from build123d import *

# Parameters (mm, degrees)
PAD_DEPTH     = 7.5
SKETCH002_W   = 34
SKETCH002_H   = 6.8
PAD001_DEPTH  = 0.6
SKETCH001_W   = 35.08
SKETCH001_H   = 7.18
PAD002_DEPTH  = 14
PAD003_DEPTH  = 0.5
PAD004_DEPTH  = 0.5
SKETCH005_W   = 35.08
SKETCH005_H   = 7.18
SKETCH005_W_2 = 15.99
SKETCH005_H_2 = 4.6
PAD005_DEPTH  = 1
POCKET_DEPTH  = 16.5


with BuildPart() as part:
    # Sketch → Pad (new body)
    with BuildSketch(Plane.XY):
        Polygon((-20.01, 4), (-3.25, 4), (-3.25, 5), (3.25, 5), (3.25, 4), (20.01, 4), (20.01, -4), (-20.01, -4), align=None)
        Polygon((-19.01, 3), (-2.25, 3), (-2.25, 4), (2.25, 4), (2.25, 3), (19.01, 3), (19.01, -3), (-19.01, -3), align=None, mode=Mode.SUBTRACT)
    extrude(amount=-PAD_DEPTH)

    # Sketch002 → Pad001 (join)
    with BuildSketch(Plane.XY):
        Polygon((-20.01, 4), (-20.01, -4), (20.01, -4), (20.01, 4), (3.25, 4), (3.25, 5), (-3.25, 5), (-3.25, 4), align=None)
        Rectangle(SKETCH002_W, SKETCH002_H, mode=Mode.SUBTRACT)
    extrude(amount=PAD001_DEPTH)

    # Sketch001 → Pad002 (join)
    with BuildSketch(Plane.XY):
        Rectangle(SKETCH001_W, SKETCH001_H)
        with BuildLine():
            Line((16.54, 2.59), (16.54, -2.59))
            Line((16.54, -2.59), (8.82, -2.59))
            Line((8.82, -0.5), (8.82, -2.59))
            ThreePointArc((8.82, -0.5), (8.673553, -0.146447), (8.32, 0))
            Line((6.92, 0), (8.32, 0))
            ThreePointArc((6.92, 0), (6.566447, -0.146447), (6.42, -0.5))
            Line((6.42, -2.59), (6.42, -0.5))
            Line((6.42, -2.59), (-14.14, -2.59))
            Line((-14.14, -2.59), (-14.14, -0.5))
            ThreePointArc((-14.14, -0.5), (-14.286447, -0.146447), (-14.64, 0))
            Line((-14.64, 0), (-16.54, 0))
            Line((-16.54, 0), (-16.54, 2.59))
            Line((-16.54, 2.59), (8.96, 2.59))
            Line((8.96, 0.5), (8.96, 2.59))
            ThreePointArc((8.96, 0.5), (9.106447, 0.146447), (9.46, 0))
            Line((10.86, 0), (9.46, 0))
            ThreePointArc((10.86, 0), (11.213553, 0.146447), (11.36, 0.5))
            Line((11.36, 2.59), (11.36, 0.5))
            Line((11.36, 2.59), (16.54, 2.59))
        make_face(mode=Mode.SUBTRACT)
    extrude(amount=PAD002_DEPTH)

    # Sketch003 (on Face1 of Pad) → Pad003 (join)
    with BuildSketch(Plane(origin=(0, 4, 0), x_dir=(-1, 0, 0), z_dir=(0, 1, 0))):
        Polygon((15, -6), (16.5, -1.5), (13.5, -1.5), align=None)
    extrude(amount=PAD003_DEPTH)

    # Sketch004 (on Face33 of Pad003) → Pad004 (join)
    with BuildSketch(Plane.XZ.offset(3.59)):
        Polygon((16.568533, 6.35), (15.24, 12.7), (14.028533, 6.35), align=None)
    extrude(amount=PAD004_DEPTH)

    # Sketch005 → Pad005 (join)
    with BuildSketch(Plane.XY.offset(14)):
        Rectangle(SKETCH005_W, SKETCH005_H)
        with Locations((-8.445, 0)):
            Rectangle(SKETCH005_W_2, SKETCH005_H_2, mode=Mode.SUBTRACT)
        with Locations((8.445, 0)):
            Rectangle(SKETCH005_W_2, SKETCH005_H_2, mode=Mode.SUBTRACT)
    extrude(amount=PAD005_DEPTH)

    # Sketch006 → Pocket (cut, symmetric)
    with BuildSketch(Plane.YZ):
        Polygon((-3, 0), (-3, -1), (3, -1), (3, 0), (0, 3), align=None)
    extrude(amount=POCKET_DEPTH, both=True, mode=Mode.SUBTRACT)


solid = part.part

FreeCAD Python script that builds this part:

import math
import FreeCAD as App
import Part
import Sketcher
Q = App.Units.Quantity

doc = App.newDocument("Part")
body = doc.addObject("PartDesign::Body", "Body")

# Sketch on XY plane
sketch1 = body.newObject("Sketcher::SketchObject", "Sketch")
sketch1.AttachmentSupport = (doc.getObject("XY_Plane"), [""])
sketch1.MapMode = "FlatFace"
sketch1.addGeometry([
    Part.LineSegment(App.Vector(-3.25, 4, 0), App.Vector(-20.01, 4, 0)),  # 0
    Part.LineSegment(App.Vector(-20.01, 4, 0), App.Vector(-20.01, -4, 0)),  # 1
    Part.LineSegment(App.Vector(-20.01, -4, 0), App.Vector(20.01, -4, 0)),  # 2
    Part.LineSegment(App.Vector(20.01, -4, 0), App.Vector(20.01, 4, 0)),  # 3
    Part.LineSegment(App.Vector(20.01, 4, 0), App.Vector(3.25, 4, 0)),  # 4
    Part.LineSegment(App.Vector(3.25, 4, 0), App.Vector(3.25, 5, 0)),  # 5
    Part.LineSegment(App.Vector(3.25, 5, 0), App.Vector(-3.25, 5, 0)),  # 6
    Part.LineSegment(App.Vector(-3.25, 5, 0), App.Vector(-3.25, 4, 0)),  # 7
    Part.LineSegment(App.Vector(-19.01, 3, 0), App.Vector(-2.25, 3, 0)),  # 8
    Part.LineSegment(App.Vector(-2.25, 3, 0), App.Vector(-2.25, 4, 0)),  # 9
    Part.LineSegment(App.Vector(-2.25, 4, 0), App.Vector(2.25, 4, 0)),  # 10
    Part.LineSegment(App.Vector(2.25, 4, 0), App.Vector(2.25, 3, 0)),  # 11
    Part.LineSegment(App.Vector(2.25, 3, 0), App.Vector(19.01, 3, 0)),  # 12
    Part.LineSegment(App.Vector(19.01, 3, 0), App.Vector(19.01, -3, 0)),  # 13
    Part.LineSegment(App.Vector(19.01, -3, 0), App.Vector(-19.01, -3, 0)),  # 14
    Part.LineSegment(App.Vector(-19.01, -3, 0), App.Vector(-19.01, 3, 0)),  # 15
], False)
sketch1.addConstraint([
    Sketcher.Constraint("Coincident", 0, 2, 1, 1),
    Sketcher.Constraint("Coincident", 1, 2, 2, 1),
    Sketcher.Constraint("Coincident", 2, 2, 3, 1),
    Sketcher.Constraint("Coincident", 3, 2, 4, 1),
    Sketcher.Constraint("Coincident", 4, 2, 5, 1),
    Sketcher.Constraint("Coincident", 5, 2, 6, 1),
    Sketcher.Constraint("Coincident", 6, 2, 7, 1),
    Sketcher.Constraint("Coincident", 7, 2, 0, 1),
    Sketcher.Constraint("Coincident", 8, 2, 9, 1),
    Sketcher.Constraint("Coincident", 9, 2, 10, 1),
    Sketcher.Constraint("Coincident", 10, 2, 11, 1),
    Sketcher.Constraint("Coincident", 11, 2, 12, 1),
    Sketcher.Constraint("Coincident", 12, 2, 13, 1),
    Sketcher.Constraint("Coincident", 13, 2, 14, 1),
    Sketcher.Constraint("Coincident", 14, 2, 15, 1),
    Sketcher.Constraint("Coincident", 15, 2, 8, 1),
    Sketcher.Constraint("Horizontal", 0),
    Sketcher.Constraint("Vertical", 1),
    Sketcher.Constraint("Horizontal", 2),
    Sketcher.Constraint("Vertical", 3),
    Sketcher.Constraint("Horizontal", 4),
    Sketcher.Constraint("Vertical", 5),
    Sketcher.Constraint("Horizontal", 6),
    Sketcher.Constraint("Vertical", 7),
    Sketcher.Constraint("Horizontal", 8),
    Sketcher.Constraint("Vertical", 9),
    Sketcher.Constraint("Horizontal", 10),
    Sketcher.Constraint("Vertical", 11),
    Sketcher.Constraint("Horizontal", 12),
    Sketcher.Constraint("Vertical", 13),
    Sketcher.Constraint("Horizontal", 14),
    Sketcher.Constraint("Vertical", 15),
    Sketcher.Constraint("Symmetric", 0, 2, 2, 2, -1, 1),
    Sketcher.Constraint("Symmetric", 12, 2, 14, 2, -1, 1),
    Sketcher.Constraint("Symmetric", 4, 2, 7, 2, -2),
    Sketcher.Constraint("Symmetric", 8, 2, 11, 2, -2),
    Sketcher.Constraint("Horizontal", 7, 2, 9, 2),
    Sketcher.Constraint("Equal", 4, 8),
    Sketcher.Constraint("Equal", 7, 9),
    Sketcher.Constraint("DistanceY", 1, 2, 1, 1, Q("8 mm")),
    Sketcher.Constraint("DistanceY", 5, 1, 5, 2, Q("1 mm")),
    Sketcher.Constraint("DistanceX", 6, 2, 6, 1, Q("6.5 mm")),
    Sketcher.Constraint("DistanceX", 10, 1, 10, 2, Q("4.5 mm")),
    Sketcher.Constraint("DistanceX", 0, 2, 0, 1, Q("16.76 mm")),
])
pad1 = body.newObject("PartDesign::Pad", "Pad")
pad1.Profile = sketch1
pad1.Length = 7.5
pad1.Reversed = True

# Sketch on XY plane
sketch2 = body.newObject("Sketcher::SketchObject", "Sketch001")
sketch2.AttachmentSupport = (doc.getObject("XY_Plane"), [""])
sketch2.MapMode = "FlatFace"
sketch2.addGeometry([
    Part.LineSegment(App.Vector(-20.01, 4, 0), App.Vector(-20.01, -4, 0)),  # 0
    Part.LineSegment(App.Vector(-20.01, -4, 0), App.Vector(20.01, -4, 0)),  # 1
    Part.LineSegment(App.Vector(20.01, -4, 0), App.Vector(20.01, 4, 0)),  # 2
    Part.LineSegment(App.Vector(20.01, 4, 0), App.Vector(3.25, 4, 0)),  # 3
    Part.LineSegment(App.Vector(3.25, 4, 0), App.Vector(3.25, 5, 0)),  # 4
    Part.LineSegment(App.Vector(3.25, 5, 0), App.Vector(-3.25, 5, 0)),  # 5
    Part.LineSegment(App.Vector(-3.25, 5, 0), App.Vector(-3.25, 4, 0)),  # 6
    Part.LineSegment(App.Vector(-3.25, 4, 0), App.Vector(-20.01, 4, 0)),  # 7
    Part.LineSegment(App.Vector(17, -3.4, 0), App.Vector(-17, -3.4, 0)),  # 8
    Part.LineSegment(App.Vector(-17, -3.4, 0), App.Vector(-17, 3.4, 0)),  # 9
    Part.LineSegment(App.Vector(-17, 3.4, 0), App.Vector(17, 3.4, 0)),  # 10
    Part.LineSegment(App.Vector(17, 3.4, 0), App.Vector(17, -3.4, 0)),  # 11
], False)
sketch2.addConstraint([
    Sketcher.Constraint("Coincident", 0, 2, 1, 1),
    Sketcher.Constraint("Coincident", 1, 2, 2, 1),
    Sketcher.Constraint("Coincident", 2, 2, 3, 1),
    Sketcher.Constraint("Coincident", 3, 2, 4, 1),
    Sketcher.Constraint("Coincident", 4, 2, 5, 1),
    Sketcher.Constraint("Coincident", 5, 2, 6, 1),
    Sketcher.Constraint("Coincident", 6, 2, 7, 1),
    Sketcher.Constraint("Coincident", 7, 2, 0, 1),
    Sketcher.Constraint("Coincident", 8, 2, 9, 1),
    Sketcher.Constraint("Coincident", 9, 2, 10, 1),
    Sketcher.Constraint("Coincident", 10, 2, 11, 1),
    Sketcher.Constraint("Coincident", 11, 2, 8, 1),
    Sketcher.Constraint("Vertical", 0),
    Sketcher.Constraint("Horizontal", 1),
    Sketcher.Constraint("Vertical", 2),
    Sketcher.Constraint("Horizontal", 3),
    Sketcher.Constraint("Vertical", 4),
    Sketcher.Constraint("Horizontal", 5),
    Sketcher.Constraint("Vertical", 6),
    Sketcher.Constraint("Horizontal", 7),
    Sketcher.Constraint("Horizontal", 8),
    Sketcher.Constraint("Vertical", 9),
    Sketcher.Constraint("Horizontal", 10),
    Sketcher.Constraint("Vertical", 11),
    Sketcher.Constraint("Symmetric", 0, 2, 2, 2, -1, 1),
    Sketcher.Constraint("Symmetric", 8, 2, 10, 2, -1, 1),
    Sketcher.Constraint("Symmetric", 3, 2, 6, 2, -2),
    Sketcher.Constraint("DistanceX", 8, 2, 8, 1, Q("34 mm")),
    Sketcher.Constraint("DistanceY", 0, 2, 0, 1, Q("8 mm")),
    Sketcher.Constraint("DistanceY", 4, 1, 4, 2, Q("1 mm")),
    Sketcher.Constraint("DistanceX", 5, 2, 5, 1, Q("6.5 mm")),
    Sketcher.Constraint("DistanceY", 9, 1, 9, 2, Q("6.8 mm")),
    Sketcher.Constraint("DistanceX", 1, 1, 1, 2, Q("40.02 mm")),
])
pad2 = body.newObject("PartDesign::Pad", "Pad001")
pad2.Profile = sketch2
pad2.Length = 0.6

# Sketch on XY plane
sketch3 = body.newObject("Sketcher::SketchObject", "Sketch002")
sketch3.AttachmentSupport = (doc.getObject("XY_Plane"), [""])
sketch3.MapMode = "FlatFace"
sketch3.addGeometry([
    Part.LineSegment(App.Vector(-17.54, 3.59, 0), App.Vector(-17.54, -3.59, 0)),  # 0
    Part.LineSegment(App.Vector(-17.54, -3.59, 0), App.Vector(17.54, -3.59, 0)),  # 1
    Part.LineSegment(App.Vector(17.54, -3.59, 0), App.Vector(17.54, 3.59, 0)),  # 2
    Part.LineSegment(App.Vector(17.54, 3.59, 0), App.Vector(-17.54, 3.59, 0)),  # 3
    Part.LineSegment(App.Vector(11.36, 2.59, 0), App.Vector(16.54, 2.59, 0)),  # 4
    Part.LineSegment(App.Vector(16.54, 2.59, 0), App.Vector(16.54, -2.59, 0)),  # 5
    Part.LineSegment(App.Vector(16.54, -2.59, 0), App.Vector(8.82, -2.59, 0)),  # 6
    Part.LineSegment(App.Vector(8.82, -2.59, 0), App.Vector(8.82, -0.5, 0)),  # 7
    Part.ArcOfCircle(Part.Circle(App.Vector(8.319999, -0.500001, 0), App.Vector(0, 0, 1), 0.500001), math.radians(0.000153), math.radians(89.999847)),  # 8
    Part.LineSegment(App.Vector(8.32, 0, 0), App.Vector(6.92, 0, 0)),  # 9
    Part.ArcOfCircle(Part.Circle(App.Vector(6.920001, -0.500001, 0), App.Vector(0, 0, 1), 0.500001), math.radians(90.000153), math.radians(179.999847)),  # 10
    Part.LineSegment(App.Vector(6.42, -0.5, 0), App.Vector(6.42, -2.59, 0)),  # 11
    Part.LineSegment(App.Vector(6.42, -2.59, 0), App.Vector(-14.14, -2.59, 0)),  # 12
    Part.LineSegment(App.Vector(-14.14, -2.59, 0), App.Vector(-14.14, -0.5, 0)),  # 13
    Part.ArcOfCircle(Part.Circle(App.Vector(-14.640001, -0.500001, 0), App.Vector(0, 0, 1), 0.500001), math.radians(0.000153), math.radians(89.999847)),  # 14
    Part.LineSegment(App.Vector(-14.64, 0, 0), App.Vector(-16.54, 0, 0)),  # 15
    Part.LineSegment(App.Vector(-16.54, 0, 0), App.Vector(-16.54, 2.59, 0)),  # 16
    Part.LineSegment(App.Vector(-16.54, 2.59, 0), App.Vector(8.96, 2.59, 0)),  # 17
    Part.LineSegment(App.Vector(8.96, 2.59, 0), App.Vector(8.96, 0.5, 0)),  # 18
    Part.ArcOfCircle(Part.Circle(App.Vector(9.460001, 0.500001, 0), App.Vector(0, 0, 1), 0.500001), math.radians(-179.999847), math.radians(-90.000153)),  # 19
    Part.LineSegment(App.Vector(9.46, 0, 0), App.Vector(10.86, 0, 0)),  # 20
    Part.ArcOfCircle(Part.Circle(App.Vector(10.859999, 0.500001, 0), App.Vector(0, 0, 1), 0.500001), math.radians(-89.999847), math.radians(-0.000153)),  # 21
    Part.LineSegment(App.Vector(11.36, 0.5, 0), App.Vector(11.36, 2.59, 0)),  # 22
], False)
sketch3.addConstraint([
    Sketcher.Constraint("Coincident", 0, 2, 1, 1),
    Sketcher.Constraint("Coincident", 1, 2, 2, 1),
    Sketcher.Constraint("Coincident", 2, 2, 3, 1),
    Sketcher.Constraint("Coincident", 3, 2, 0, 1),
    Sketcher.Constraint("Coincident", 4, 2, 5, 1),
    Sketcher.Constraint("Coincident", 5, 2, 6, 1),
    Sketcher.Constraint("Coincident", 6, 2, 7, 1),
    Sketcher.Constraint("Coincident", 7, 2, 8, 1),
    Sketcher.Constraint("Coincident", 8, 2, 9, 1),
    Sketcher.Constraint("Coincident", 9, 2, 10, 1),
    Sketcher.Constraint("Coincident", 10, 2, 11, 1),
    Sketcher.Constraint("Coincident", 11, 2, 12, 1),
    Sketcher.Constraint("Coincident", 12, 2, 13, 1),
    Sketcher.Constraint("Coincident", 13, 2, 14, 1),
    Sketcher.Constraint("Coincident", 14, 2, 15, 1),
    Sketcher.Constraint("Coincident", 15, 2, 16, 1),
    Sketcher.Constraint("Coincident", 16, 2, 17, 1),
    Sketcher.Constraint("Coincident", 17, 2, 18, 1),
    Sketcher.Constraint("Coincident", 18, 2, 19, 1),
    Sketcher.Constraint("Coincident", 19, 2, 20, 1),
    Sketcher.Constraint("Coincident", 20, 2, 21, 1),
    Sketcher.Constraint("Coincident", 21, 2, 22, 1),
    Sketcher.Constraint("Coincident", 22, 2, 4, 1),
    Sketcher.Constraint("Vertical", 0),
    Sketcher.Constraint("Horizontal", 1),
    Sketcher.Constraint("Vertical", 2),
    Sketcher.Constraint("Horizontal", 3),
    Sketcher.Constraint("Horizontal", 4),
    Sketcher.Constraint("Vertical", 5),
    Sketcher.Constraint("Horizontal", 6),
    Sketcher.Constraint("Vertical", 7),
    Sketcher.Constraint("Horizontal", 9),
    Sketcher.Constraint("Vertical", 11),
    Sketcher.Constraint("Horizontal", 12),
    Sketcher.Constraint("Vertical", 13),
    Sketcher.Constraint("Horizontal", 15),
    Sketcher.Constraint("Vertical", 16),
    Sketcher.Constraint("Horizontal", 17),
    Sketcher.Constraint("Vertical", 18),
    Sketcher.Constraint("Horizontal", 20),
    Sketcher.Constraint("Vertical", 22),
    Sketcher.Constraint("Equal", 8, 10),
    Sketcher.Constraint("Equal", 10, 14),
    Sketcher.Constraint("Equal", 14, 19),
    Sketcher.Constraint("Equal", 19, 21),
    Sketcher.Constraint("Symmetric", 0, 2, 2, 2, -1, 1),
    Sketcher.Constraint("Symmetric", 5, 2, 16, 2, -1, 1),
    Sketcher.Constraint("PointOnObject", 8, 2, -1),
    Sketcher.Constraint("PointOnObject", 14, 2, -1),
    Sketcher.Constraint("PointOnObject", 19, 2, -1),
    Sketcher.Constraint("Horizontal", 14, 3, 7, 2),
    Sketcher.Constraint("Horizontal", 7, 2, 10, 2),
    Sketcher.Constraint("Horizontal", 6, 2, 11, 2),
    Sketcher.Constraint("Horizontal", 10, 2, 13, 2),
    Sketcher.Constraint("Horizontal", 4, 2, 16, 2),
    Sketcher.Constraint("Horizontal", 21, 3, 18, 2),
    Sketcher.Constraint("Horizontal", 18, 2, 21, 2),
    Sketcher.Constraint("Vertical", 10, 3, 9, 2),
    Sketcher.Constraint("Vertical", 21, 3, 20, 2),
    Sketcher.Constraint("Equal", 9, 20),
    Sketcher.Constraint("Equal", 4, 5),
    Sketcher.Constraint("Radius", 8, Q("0.500001 mm")),
    Sketcher.Constraint("DistanceX", 9, 2, 9, 1, Q("1.4 mm")),
    Sketcher.Constraint("DistanceX", 15, 2, 15, 1, Q("1.9 mm")),
    Sketcher.Constraint("DistanceX", 17, 1, 17, 2, Q("25.5 mm")),
    Sketcher.Constraint("DistanceX", 0, 2, 19, 3, Q("27.000001 mm")),
    Sketcher.Constraint("DistanceY", 4, 2, 2, 2, Q("1 mm")),
    Sketcher.Constraint("DistanceX", 1, 1, 1, 2, Q("35.08 mm")),
    Sketcher.Constraint("DistanceX", 4, 1, 4, 2, Q("5.18 mm")),
    Sketcher.Constraint("DistanceX", 6, 2, 6, 1, Q("7.72 mm")),
    Sketcher.Constraint("DistanceX", 12, 2, 12, 1, Q("20.56 mm")),
    Sketcher.Constraint("DistanceX", 14, 3, 21, 3, Q("25.5 mm")),
])
pad3 = body.newObject("PartDesign::Pad", "Pad002")
pad3.Profile = sketch3
pad3.Length = 14

# Sketch on XZ plane
sketch4 = body.newObject("Sketcher::SketchObject", "Sketch003")
sketch4.AttachmentSupport = (doc.getObject("XZ_Plane"), [""])
sketch4.MapMode = "FlatFace"
sketch4.AttachmentOffset = App.Placement(App.Vector(0, 0, -4), App.Rotation())
sketch4.addGeometry([
    Part.LineSegment(App.Vector(-15, -6, 0), App.Vector(-16.5, -1.5, 0)),
    Part.LineSegment(App.Vector(-16.5, -1.5, 0), App.Vector(-13.5, -1.5, 0)),
    Part.LineSegment(App.Vector(-13.5, -1.5, 0), App.Vector(-15, -6, 0)),
], False)
sketch4.addConstraint([
    Sketcher.Constraint("Coincident", 0, 2, 1, 1),
    Sketcher.Constraint("Coincident", 1, 2, 2, 1),
    Sketcher.Constraint("Coincident", 2, 2, 0, 1),
    Sketcher.Constraint("Horizontal", 1),
    Sketcher.Constraint("Equal", 0, 2),
    Sketcher.Constraint("DistanceX", 1, 1, 1, 2, Q("3 mm")),
    Sketcher.Constraint("DistanceX", 2, 2, -1, 1, Q("15 mm")),
    Sketcher.Constraint("DistanceY", 2, 2, -1, 1, Q("6 mm")),
    Sketcher.Constraint("DistanceY", 0, 2, -1, 1, Q("1.5 mm")),
])
pad4 = body.newObject("PartDesign::Pad", "Pad003")
pad4.Profile = sketch4
pad4.Length = 0.5
pad4.Reversed = True

# Sketch on XZ plane
sketch5 = body.newObject("Sketcher::SketchObject", "Sketch004")
sketch5.AttachmentSupport = (doc.getObject("XZ_Plane"), [""])
sketch5.MapMode = "FlatFace"
sketch5.AttachmentOffset = App.Placement(App.Vector(0, 0, 3.59), App.Rotation())
sketch5.addGeometry([
    Part.LineSegment(App.Vector(16.568533, 6.35, 0), App.Vector(15.24, 12.7, 0)),
    Part.LineSegment(App.Vector(15.24, 12.7, 0), App.Vector(14.028533, 6.35, 0)),
    Part.LineSegment(App.Vector(14.028533, 6.35, 0), App.Vector(16.568533, 6.35, 0)),
], False)
sketch5.addConstraint([
    Sketcher.Constraint("Coincident", 0, 2, 1, 1),
    Sketcher.Constraint("Coincident", 1, 2, 2, 1),
    Sketcher.Constraint("Coincident", 2, 2, 0, 1),
    Sketcher.Constraint("Horizontal", 2),
    Sketcher.Constraint("DistanceX", 2, 1, 2, 2, Q("2.54 mm")),
    Sketcher.Constraint("DistanceY", -1, 1, 0, 2, Q("12.7 mm")),
    Sketcher.Constraint("DistanceX", -1, 1, 0, 2, Q("15.24 mm")),
    Sketcher.Constraint("DistanceY", -1, 1, 1, 2, Q("6.35 mm")),
    Sketcher.Constraint("Distance", 1, Q("6.46453 mm")),
])
pad5 = body.newObject("PartDesign::Pad", "Pad004")
pad5.Profile = sketch5
pad5.Length = 0.5

# Sketch on XY plane
sketch6 = body.newObject("Sketcher::SketchObject", "Sketch005")
sketch6.AttachmentSupport = (doc.getObject("XY_Plane"), [""])
sketch6.MapMode = "FlatFace"
sketch6.AttachmentOffset = App.Placement(App.Vector(0, 0, 14), App.Rotation())
sketch6.addGeometry([
    Part.LineSegment(App.Vector(-17.54, 3.59, 0), App.Vector(-17.54, -3.59, 0)),  # 0
    Part.LineSegment(App.Vector(-17.54, -3.59, 0), App.Vector(17.54, -3.59, 0)),  # 1
    Part.LineSegment(App.Vector(17.54, -3.59, 0), App.Vector(17.54, 3.59, 0)),  # 2
    Part.LineSegment(App.Vector(17.54, 3.59, 0), App.Vector(-17.54, 3.59, 0)),  # 3
    Part.LineSegment(App.Vector(-0.45, -2.3, 0), App.Vector(-16.44, -2.3, 0)),  # 4
    Part.LineSegment(App.Vector(-16.44, -2.3, 0), App.Vector(-16.44, 2.3, 0)),  # 5
    Part.LineSegment(App.Vector(-16.44, 2.3, 0), App.Vector(-0.45, 2.3, 0)),  # 6
    Part.LineSegment(App.Vector(-0.45, 2.3, 0), App.Vector(-0.45, -2.3, 0)),  # 7
    Part.LineSegment(App.Vector(16.44, -2.3, 0), App.Vector(0.45, -2.3, 0)),  # 8
    Part.LineSegment(App.Vector(0.45, -2.3, 0), App.Vector(0.45, 2.3, 0)),  # 9
    Part.LineSegment(App.Vector(0.45, 2.3, 0), App.Vector(16.44, 2.3, 0)),  # 10
    Part.LineSegment(App.Vector(16.44, 2.3, 0), App.Vector(16.44, -2.3, 0)),  # 11
], False)
sketch6.addConstraint([
    Sketcher.Constraint("Coincident", 0, 2, 1, 1),
    Sketcher.Constraint("Coincident", 1, 2, 2, 1),
    Sketcher.Constraint("Coincident", 2, 2, 3, 1),
    Sketcher.Constraint("Coincident", 3, 2, 0, 1),
    Sketcher.Constraint("Coincident", 4, 2, 5, 1),
    Sketcher.Constraint("Coincident", 5, 2, 6, 1),
    Sketcher.Constraint("Coincident", 6, 2, 7, 1),
    Sketcher.Constraint("Coincident", 7, 2, 4, 1),
    Sketcher.Constraint("Coincident", 8, 2, 9, 1),
    Sketcher.Constraint("Coincident", 9, 2, 10, 1),
    Sketcher.Constraint("Coincident", 10, 2, 11, 1),
    Sketcher.Constraint("Coincident", 11, 2, 8, 1),
    Sketcher.Constraint("Vertical", 0),
    Sketcher.Constraint("Horizontal", 1),
    Sketcher.Constraint("Vertical", 2),
    Sketcher.Constraint("Horizontal", 3),
    Sketcher.Constraint("Horizontal", 4),
    Sketcher.Constraint("Vertical", 5),
    Sketcher.Constraint("Horizontal", 6),
    Sketcher.Constraint("Vertical", 7),
    Sketcher.Constraint("Horizontal", 8),
    Sketcher.Constraint("Vertical", 9),
    Sketcher.Constraint("Horizontal", 10),
    Sketcher.Constraint("Vertical", 11),
    Sketcher.Constraint("Symmetric", 0, 2, 2, 2, -1, 1),
    Sketcher.Constraint("Symmetric", 6, 2, 8, 2, -1, 1),
    Sketcher.Constraint("Symmetric", 4, 2, 10, 2, -1, 1),
    Sketcher.Constraint("Horizontal", 7, 2, 8, 2),
    Sketcher.Constraint("DistanceY", 5, 1, 5, 2, Q("4.6 mm")),
    Sketcher.Constraint("DistanceX", 1, 1, 1, 2, Q("35.08 mm")),
    Sketcher.Constraint("DistanceX", 4, 2, 4, 1, Q("15.99 mm")),
    Sketcher.Constraint("DistanceY", 0, 2, 0, 1, Q("7.18 mm")),
    Sketcher.Constraint("DistanceX", 0, 2, 4, 2, Q("1.1 mm")),
])
pad6 = body.newObject("PartDesign::Pad", "Pad005")
pad6.Profile = sketch6
pad6.Length = 1

# Sketch on YZ plane
sketch7 = body.newObject("Sketcher::SketchObject", "Sketch006")
sketch7.AttachmentSupport = (doc.getObject("YZ_Plane"), [""])
sketch7.MapMode = "FlatFace"
sketch7.addGeometry([
    Part.LineSegment(App.Vector(-3, 0, 0), App.Vector(-3, -1, 0)),  # 0
    Part.LineSegment(App.Vector(-3, -1, 0), App.Vector(3, -1, 0)),  # 1
    Part.LineSegment(App.Vector(3, -1, 0), App.Vector(3, 0, 0)),  # 2
    Part.LineSegment(App.Vector(3, 0, 0), App.Vector(0, 3, 0)),  # 3
    Part.LineSegment(App.Vector(0, 3, 0), App.Vector(-3, 0, 0)),  # 4
], False)
sketch7.addConstraint([
    Sketcher.Constraint("Coincident", 0, 2, 1, 1),
    Sketcher.Constraint("Coincident", 1, 2, 2, 1),
    Sketcher.Constraint("Coincident", 2, 2, 3, 1),
    Sketcher.Constraint("Coincident", 3, 2, 4, 1),
    Sketcher.Constraint("Coincident", 4, 2, 0, 1),
    Sketcher.Constraint("Vertical", 0),
    Sketcher.Constraint("Horizontal", 1),
    Sketcher.Constraint("Vertical", 2),
    Sketcher.Constraint("Symmetric", 2, 2, 4, 2, -1, 1),
    Sketcher.Constraint("PointOnObject", 2, 2, -1),
    Sketcher.Constraint("PointOnObject", 3, 2, -2),
    Sketcher.Constraint("Perpendicular", 3, 4),
    Sketcher.Constraint("DistanceX", 1, 1, 1, 2, Q("6 mm")),
    Sketcher.Constraint("DistanceY", 0, 2, 0, 1, Q("1 mm")),
])
pocket1 = body.newObject("PartDesign::Pocket", "Pocket")
pocket1.Profile = sketch7
pocket1.Length = 33
pocket1.Midplane = True

doc.recompute()
